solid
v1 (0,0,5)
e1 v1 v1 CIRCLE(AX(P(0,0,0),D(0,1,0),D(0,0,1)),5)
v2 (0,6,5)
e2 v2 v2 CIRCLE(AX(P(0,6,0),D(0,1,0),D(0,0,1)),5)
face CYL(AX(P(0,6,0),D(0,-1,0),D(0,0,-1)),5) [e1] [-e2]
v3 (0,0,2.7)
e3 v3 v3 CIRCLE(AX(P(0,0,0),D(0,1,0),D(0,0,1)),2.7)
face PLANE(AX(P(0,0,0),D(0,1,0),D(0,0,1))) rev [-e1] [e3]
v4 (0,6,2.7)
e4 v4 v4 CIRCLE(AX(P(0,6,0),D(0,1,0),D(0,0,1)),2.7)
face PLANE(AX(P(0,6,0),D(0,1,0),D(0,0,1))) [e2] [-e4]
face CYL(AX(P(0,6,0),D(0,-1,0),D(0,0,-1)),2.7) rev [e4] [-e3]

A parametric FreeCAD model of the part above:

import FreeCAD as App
import Part
import Sketcher

doc = App.newDocument("Part")
body = doc.addObject("PartDesign::Body", "Body")

# Sketch on XZ plane
sketch1 = body.newObject("Sketcher::SketchObject", "Sketch")
sketch1.AttachmentSupport = (doc.getObject("XZ_Plane"), [""])
sketch1.MapMode = "FlatFace"
sketch1.addGeometry([
    Part.Circle(App.Vector(0, 0, 0), App.Vector(0, 0, 1), 5),
    Part.Circle(App.Vector(0, 0, 0), App.Vector(0, 0, 1), 2.7),
], False)
sketch1.addConstraint([
    Sketcher.Constraint("Coincident", 0, 3, -1, 1),
    Sketcher.Constraint("Coincident", 1, 3, -1, 1),
    Sketcher.Constraint("Diameter", 0, 10.0),
    Sketcher.Constraint("Diameter", 1, 5.4),
])
pad1 = body.newObject("PartDesign::Pad", "Pad")
pad1.Profile = sketch1
pad1.Length = 6
pad1.Reversed = True

doc.recompute()
